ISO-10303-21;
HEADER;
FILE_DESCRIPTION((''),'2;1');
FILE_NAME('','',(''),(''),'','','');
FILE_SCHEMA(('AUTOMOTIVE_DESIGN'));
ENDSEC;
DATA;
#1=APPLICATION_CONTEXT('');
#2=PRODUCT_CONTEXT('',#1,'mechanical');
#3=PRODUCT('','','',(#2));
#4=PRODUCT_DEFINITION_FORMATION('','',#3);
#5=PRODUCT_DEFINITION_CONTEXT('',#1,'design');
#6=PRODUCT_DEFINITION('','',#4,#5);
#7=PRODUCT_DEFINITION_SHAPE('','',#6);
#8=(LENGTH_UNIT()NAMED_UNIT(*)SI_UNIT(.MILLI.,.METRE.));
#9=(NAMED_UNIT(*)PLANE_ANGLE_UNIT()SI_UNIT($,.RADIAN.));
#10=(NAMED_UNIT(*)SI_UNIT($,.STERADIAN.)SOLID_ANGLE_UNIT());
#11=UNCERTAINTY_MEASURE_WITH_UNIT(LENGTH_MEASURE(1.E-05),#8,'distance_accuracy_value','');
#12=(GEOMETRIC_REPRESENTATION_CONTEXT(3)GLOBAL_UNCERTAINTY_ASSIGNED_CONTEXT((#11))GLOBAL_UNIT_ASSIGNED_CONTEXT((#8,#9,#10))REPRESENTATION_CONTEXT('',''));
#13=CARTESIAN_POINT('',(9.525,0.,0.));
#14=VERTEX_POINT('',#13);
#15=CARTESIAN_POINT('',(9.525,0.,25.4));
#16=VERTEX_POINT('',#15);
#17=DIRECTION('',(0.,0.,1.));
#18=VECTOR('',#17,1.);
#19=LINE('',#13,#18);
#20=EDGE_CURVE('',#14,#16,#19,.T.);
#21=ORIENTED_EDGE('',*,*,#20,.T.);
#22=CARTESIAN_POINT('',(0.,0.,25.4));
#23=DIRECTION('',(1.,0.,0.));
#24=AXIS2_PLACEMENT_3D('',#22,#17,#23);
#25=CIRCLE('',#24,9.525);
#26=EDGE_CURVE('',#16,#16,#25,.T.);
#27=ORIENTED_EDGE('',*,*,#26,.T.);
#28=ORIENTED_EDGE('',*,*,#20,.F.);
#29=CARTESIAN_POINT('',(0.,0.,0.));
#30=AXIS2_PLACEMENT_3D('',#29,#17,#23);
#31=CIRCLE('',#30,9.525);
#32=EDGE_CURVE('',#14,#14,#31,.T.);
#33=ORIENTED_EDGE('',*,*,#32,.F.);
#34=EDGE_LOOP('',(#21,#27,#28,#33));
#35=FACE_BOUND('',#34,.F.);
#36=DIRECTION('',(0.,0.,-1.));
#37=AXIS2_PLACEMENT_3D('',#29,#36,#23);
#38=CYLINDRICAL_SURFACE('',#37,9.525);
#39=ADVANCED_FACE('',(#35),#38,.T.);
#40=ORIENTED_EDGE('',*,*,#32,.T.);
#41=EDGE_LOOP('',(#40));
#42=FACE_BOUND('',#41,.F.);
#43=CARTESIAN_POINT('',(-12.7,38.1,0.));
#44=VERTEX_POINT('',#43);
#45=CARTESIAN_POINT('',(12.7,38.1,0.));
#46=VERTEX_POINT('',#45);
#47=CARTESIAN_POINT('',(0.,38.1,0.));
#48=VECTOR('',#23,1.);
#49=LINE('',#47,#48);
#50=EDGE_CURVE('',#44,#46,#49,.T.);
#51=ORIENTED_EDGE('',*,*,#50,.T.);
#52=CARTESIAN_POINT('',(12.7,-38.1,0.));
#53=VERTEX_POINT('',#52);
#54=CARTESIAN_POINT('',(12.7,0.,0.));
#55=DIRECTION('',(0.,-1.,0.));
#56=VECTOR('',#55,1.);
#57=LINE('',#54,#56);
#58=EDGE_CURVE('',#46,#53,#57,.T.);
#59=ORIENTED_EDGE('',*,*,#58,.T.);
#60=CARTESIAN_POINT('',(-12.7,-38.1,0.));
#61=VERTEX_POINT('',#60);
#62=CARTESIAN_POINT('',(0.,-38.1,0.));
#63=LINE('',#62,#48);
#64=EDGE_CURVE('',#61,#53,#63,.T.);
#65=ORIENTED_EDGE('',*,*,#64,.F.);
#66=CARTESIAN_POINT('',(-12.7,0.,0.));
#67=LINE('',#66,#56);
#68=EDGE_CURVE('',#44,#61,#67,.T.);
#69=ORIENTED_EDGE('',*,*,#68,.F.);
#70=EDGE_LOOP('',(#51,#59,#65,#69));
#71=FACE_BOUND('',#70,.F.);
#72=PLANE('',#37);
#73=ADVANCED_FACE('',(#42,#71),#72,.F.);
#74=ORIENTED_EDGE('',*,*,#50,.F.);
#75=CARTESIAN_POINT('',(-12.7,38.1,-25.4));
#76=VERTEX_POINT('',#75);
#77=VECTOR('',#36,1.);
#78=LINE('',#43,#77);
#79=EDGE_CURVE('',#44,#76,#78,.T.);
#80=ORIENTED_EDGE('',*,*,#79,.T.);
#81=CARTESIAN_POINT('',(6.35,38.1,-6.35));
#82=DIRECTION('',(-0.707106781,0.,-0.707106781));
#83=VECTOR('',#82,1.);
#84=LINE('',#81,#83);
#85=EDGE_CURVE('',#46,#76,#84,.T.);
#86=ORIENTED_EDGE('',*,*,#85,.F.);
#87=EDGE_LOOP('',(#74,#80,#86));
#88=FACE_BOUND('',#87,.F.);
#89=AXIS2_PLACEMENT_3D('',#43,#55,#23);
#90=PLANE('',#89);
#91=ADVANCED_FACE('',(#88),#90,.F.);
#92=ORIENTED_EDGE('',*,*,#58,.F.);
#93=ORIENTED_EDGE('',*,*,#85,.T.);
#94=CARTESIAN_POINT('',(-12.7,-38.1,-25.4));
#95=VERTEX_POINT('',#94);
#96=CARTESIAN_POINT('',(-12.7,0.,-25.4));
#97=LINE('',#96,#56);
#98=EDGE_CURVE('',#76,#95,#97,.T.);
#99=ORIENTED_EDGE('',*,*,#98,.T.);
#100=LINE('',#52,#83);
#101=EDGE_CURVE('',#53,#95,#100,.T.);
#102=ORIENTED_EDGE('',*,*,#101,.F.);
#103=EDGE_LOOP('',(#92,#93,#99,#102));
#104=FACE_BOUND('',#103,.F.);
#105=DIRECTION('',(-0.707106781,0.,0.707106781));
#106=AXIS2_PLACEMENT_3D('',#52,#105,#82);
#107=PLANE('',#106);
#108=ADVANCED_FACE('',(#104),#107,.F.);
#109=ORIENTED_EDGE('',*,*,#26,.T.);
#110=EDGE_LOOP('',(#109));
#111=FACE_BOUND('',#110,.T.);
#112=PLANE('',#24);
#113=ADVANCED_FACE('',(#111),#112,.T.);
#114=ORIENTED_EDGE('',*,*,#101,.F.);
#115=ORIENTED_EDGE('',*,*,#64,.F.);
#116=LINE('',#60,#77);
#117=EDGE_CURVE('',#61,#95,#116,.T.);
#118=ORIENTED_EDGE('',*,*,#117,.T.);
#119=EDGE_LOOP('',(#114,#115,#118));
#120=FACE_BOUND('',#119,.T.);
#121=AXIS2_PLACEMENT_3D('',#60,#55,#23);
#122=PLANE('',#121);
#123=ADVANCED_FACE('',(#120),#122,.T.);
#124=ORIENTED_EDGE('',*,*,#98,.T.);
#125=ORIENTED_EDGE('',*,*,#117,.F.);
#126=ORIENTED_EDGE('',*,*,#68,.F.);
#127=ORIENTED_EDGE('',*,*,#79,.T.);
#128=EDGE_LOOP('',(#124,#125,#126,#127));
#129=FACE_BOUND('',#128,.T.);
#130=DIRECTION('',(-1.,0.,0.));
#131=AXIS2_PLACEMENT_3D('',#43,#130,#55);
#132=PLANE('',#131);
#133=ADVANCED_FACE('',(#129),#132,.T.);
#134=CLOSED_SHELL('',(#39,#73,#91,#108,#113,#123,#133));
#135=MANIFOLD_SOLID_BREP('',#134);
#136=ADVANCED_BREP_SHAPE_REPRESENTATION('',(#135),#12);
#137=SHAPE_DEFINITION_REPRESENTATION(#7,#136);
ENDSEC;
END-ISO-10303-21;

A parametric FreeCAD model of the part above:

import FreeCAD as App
import Part
import Sketcher
Q = App.Units.Quantity


def add_polygon(sketch, points):
    """Adds a closed chain of lines whose ends are joined by coincident constraints."""
    first, n = sketch.GeometryCount, len(points)
    for a, b in zip(points, points[1:] + points[:1]):
        sketch.addGeometry(Part.LineSegment(App.Vector(*a, 0), App.Vector(*b, 0)), False)
    for i in range(n):
        sketch.addConstraint(Sketcher.Constraint("Coincident", first + i, 2, first + (i + 1) % n, 1))

doc = App.newDocument("Part")
params = doc.addObject("Spreadsheet::Sheet", "Params")
for row, (alias, value) in enumerate([
    ("sketch1_diameter", "0.75 in"),
    ("pad1_length", "1 in"),
    ("sketch2_width", "1 in"),
    ("sketch2_height", "3 in"),
    ("pad2_length", "1 in"),
    ("sketch3_width", "1 in"),
], start=1):
    params.set(f"A{row}", alias)
    params.set(f"B{row}", "=" + value)
    params.setAlias(f"B{row}", alias)

body = doc.addObject("PartDesign::Body", "Body")

sketch1 = doc.addObject("Sketcher::SketchObject", "Sketch")
body.addObject(sketch1)
sketch1.AttachmentSupport = (doc.XY_Plane, [""])
sketch1.MapMode = "FlatFace"
sketch1.addGeometry(Part.Circle(App.Vector(0, 0, 0), App.Vector(0, 0, 1), 10), False)
sketch1.addConstraint([
    Sketcher.Constraint("Coincident", 0, 3, -1, 1),
    Sketcher.Constraint("Diameter", 0, Q("0.75 in")),
])
sketch1.setExpression("Constraints[1]", "Params.sketch1_diameter")
pad1 = doc.addObject("PartDesign::Pad", "Pad")
body.addObject(pad1)
pad1.Profile = sketch1
pad1.setExpression("Length", "Params.pad1_length")

sketch2 = doc.addObject("Sketcher::SketchObject", "Sketch001")
body.addObject(sketch2)
sketch2.AttachmentSupport = (doc.XY_Plane, [""])
sketch2.MapMode = "FlatFace"
add_polygon(sketch2, [(-13, -38), (-13, 38), (13, 38), (13, -38)])
sketch2.addConstraint([
    Sketcher.Constraint("Vertical", 0),
    Sketcher.Constraint("Horizontal", 1),
    Sketcher.Constraint("Vertical", 2),
    Sketcher.Constraint("Horizontal", 3),
    Sketcher.Constraint("Symmetric", 0, 2, 2, 2, -1, 1),
    Sketcher.Constraint("DistanceX", 1, 1, 1, 2, Q("1 in")),
    Sketcher.Constraint("DistanceY", 0, 1, 0, 2, Q("3 in")),
])
sketch2.setExpression("Constraints[9]", "Params.sketch2_width")
sketch2.setExpression("Constraints[10]", "Params.sketch2_height")
pad2 = doc.addObject("PartDesign::Pad", "Pad001")
body.addObject(pad2)
pad2.Profile = sketch2
pad2.setExpression("Length", "Params.pad2_length")
pad2.Reversed = True

sketch3 = doc.addObject("Sketcher::SketchObject", "Sketch002")
body.addObject(sketch3)
sketch3.AttachmentSupport = (doc.XZ_Plane, [""])
sketch3.MapMode = "FlatFace"
sketch3.AttachmentOffset = App.Placement(App.Vector(0, 0, 1.5 * 25.4), App.Rotation())
add_polygon(sketch3, [(13, -25), (13, 0), (-13, -25)])
sketch3.addConstraint([
    Sketcher.Constraint("Vertical", 0),
    Sketcher.Constraint("Horizontal", 2),
    Sketcher.Constraint("PointOnObject", 0, 2, -1),
    Sketcher.Constraint("Equal", 2, 0),
    Sketcher.Constraint("DistanceX", 2, 1, 2, 2, Q("1 in")),
    Sketcher.Constraint("DistanceX", -1, 1, 0, 2, Q("0.5 in")),
])
sketch3.setExpression("Constraints[7]", "Params.sketch3_width")
pocket1 = doc.addObject("PartDesign::Pocket", "Pocket")
body.addObject(pocket1)
pocket1.Profile = sketch3
pocket1.Type = "ThroughAll"

doc.recompute()
